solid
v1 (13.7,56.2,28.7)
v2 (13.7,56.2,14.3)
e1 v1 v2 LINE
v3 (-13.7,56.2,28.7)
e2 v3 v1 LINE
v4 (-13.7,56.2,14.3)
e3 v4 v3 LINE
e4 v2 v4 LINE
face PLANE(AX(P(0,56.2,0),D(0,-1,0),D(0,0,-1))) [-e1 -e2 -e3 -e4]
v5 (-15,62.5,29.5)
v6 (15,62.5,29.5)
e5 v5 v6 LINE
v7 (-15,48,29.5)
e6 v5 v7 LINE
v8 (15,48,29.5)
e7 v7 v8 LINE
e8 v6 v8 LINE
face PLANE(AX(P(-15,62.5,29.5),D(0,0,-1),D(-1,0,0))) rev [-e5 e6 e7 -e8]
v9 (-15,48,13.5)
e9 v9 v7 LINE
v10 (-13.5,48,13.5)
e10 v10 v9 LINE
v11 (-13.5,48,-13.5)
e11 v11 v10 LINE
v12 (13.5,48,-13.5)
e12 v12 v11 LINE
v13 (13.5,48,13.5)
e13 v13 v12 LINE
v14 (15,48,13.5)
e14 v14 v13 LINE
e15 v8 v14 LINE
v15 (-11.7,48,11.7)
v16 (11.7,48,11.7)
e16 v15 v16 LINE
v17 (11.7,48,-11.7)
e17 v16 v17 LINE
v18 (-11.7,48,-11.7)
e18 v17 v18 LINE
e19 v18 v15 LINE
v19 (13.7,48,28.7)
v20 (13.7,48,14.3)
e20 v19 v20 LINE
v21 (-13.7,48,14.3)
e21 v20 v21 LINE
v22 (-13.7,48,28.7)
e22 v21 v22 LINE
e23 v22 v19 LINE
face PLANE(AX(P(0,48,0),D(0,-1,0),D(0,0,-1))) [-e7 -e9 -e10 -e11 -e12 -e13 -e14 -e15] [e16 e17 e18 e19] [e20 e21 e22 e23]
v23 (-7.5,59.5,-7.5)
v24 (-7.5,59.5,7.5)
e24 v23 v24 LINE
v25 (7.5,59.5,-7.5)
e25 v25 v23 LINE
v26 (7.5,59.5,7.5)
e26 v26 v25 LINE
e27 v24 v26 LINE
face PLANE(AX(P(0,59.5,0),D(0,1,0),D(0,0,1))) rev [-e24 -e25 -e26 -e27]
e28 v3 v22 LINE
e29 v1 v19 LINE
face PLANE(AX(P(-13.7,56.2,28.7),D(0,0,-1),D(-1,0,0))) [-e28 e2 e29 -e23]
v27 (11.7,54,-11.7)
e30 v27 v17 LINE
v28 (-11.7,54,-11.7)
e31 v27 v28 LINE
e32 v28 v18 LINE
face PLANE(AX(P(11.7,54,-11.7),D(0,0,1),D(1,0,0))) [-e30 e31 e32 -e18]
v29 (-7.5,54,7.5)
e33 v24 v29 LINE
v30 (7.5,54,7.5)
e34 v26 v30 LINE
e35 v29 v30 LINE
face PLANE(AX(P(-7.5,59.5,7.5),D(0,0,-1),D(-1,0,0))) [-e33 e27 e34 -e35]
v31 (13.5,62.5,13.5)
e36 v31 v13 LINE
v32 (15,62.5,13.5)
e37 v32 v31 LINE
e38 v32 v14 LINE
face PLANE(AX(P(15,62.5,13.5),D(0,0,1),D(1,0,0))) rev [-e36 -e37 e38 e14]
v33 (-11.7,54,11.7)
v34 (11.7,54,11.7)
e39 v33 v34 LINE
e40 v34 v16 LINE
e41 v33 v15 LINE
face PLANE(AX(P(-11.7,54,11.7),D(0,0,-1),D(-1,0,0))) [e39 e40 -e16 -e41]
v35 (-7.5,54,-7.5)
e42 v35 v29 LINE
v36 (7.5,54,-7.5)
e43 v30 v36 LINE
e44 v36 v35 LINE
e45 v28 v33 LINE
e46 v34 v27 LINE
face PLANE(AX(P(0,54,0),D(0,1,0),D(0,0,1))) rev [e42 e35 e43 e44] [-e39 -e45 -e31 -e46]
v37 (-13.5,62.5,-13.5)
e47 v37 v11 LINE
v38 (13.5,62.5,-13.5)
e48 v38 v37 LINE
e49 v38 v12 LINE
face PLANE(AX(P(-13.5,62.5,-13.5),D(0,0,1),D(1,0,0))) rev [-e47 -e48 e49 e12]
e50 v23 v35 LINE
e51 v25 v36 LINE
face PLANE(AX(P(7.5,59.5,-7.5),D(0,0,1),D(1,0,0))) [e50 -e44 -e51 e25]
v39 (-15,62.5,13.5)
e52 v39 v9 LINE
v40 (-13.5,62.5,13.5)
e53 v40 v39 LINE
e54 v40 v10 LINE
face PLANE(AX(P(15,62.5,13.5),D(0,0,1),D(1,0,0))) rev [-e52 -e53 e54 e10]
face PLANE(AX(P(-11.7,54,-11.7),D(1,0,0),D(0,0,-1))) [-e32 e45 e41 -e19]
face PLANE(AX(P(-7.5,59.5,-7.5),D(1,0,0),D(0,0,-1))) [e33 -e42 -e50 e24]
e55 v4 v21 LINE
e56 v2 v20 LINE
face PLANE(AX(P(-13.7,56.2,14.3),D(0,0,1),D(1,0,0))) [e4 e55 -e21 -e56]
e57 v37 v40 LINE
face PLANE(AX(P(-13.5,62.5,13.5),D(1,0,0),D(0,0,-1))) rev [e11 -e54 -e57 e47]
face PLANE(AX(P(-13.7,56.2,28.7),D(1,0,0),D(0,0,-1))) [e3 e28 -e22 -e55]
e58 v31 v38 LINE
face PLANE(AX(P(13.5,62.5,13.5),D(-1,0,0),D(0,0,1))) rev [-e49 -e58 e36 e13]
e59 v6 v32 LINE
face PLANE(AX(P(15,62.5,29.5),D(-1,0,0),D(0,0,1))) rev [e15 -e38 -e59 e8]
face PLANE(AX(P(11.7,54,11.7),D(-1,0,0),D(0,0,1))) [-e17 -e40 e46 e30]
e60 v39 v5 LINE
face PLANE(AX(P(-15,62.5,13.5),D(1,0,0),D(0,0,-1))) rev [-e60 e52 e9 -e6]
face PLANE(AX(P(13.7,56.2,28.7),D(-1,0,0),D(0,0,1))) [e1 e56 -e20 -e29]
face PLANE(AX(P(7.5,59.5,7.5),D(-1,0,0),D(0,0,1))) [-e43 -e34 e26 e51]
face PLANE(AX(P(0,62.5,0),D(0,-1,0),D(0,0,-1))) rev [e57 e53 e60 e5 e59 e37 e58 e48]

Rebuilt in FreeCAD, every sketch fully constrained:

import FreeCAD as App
import Part
import Sketcher
Q = App.Units.Quantity

doc = App.newDocument("Part")
body = doc.addObject("PartDesign::Body", "Body")

# Sketch on XZ plane
sketch1 = body.newObject("Sketcher::SketchObject", "Sketch")
sketch1.AttachmentSupport = (doc.getObject("XZ_Plane"), [""])
sketch1.MapMode = "FlatFace"
sketch1.AttachmentOffset = App.Placement(App.Vector(0, 0, -48), App.Rotation())
sketch1.addGeometry([
    Part.LineSegment(App.Vector(-14, -14, 0), App.Vector(-14, 14, 0)),
    Part.LineSegment(App.Vector(-14, 14, 0), App.Vector(14, 14, 0)),
    Part.LineSegment(App.Vector(14, 14, 0), App.Vector(14, -14, 0)),
    Part.LineSegment(App.Vector(14, -14, 0), App.Vector(-14, -14, 0)),
], False)
sketch1.addConstraint([
    Sketcher.Constraint("Coincident", 0, 2, 1, 1),
    Sketcher.Constraint("Coincident", 1, 2, 2, 1),
    Sketcher.Constraint("Coincident", 2, 2, 3, 1),
    Sketcher.Constraint("Coincident", 3, 2, 0, 1),
    Sketcher.Constraint("Vertical", 0),
    Sketcher.Constraint("Horizontal", 1),
    Sketcher.Constraint("Vertical", 2),
    Sketcher.Constraint("Horizontal", 3),
    Sketcher.Constraint("Symmetric", 0, 2, 2, 2, -1, 1),
    Sketcher.Constraint("Equal", 3, 0),
    Sketcher.Constraint("DistanceX", 1, 1, 1, 2, Q("27 mm")),
])
pad1 = body.newObject("PartDesign::Pad", "Pad")
pad1.Profile = sketch1
pad1.Length = 14.5
pad1.Reversed = True

# Sketch on XZ plane
sketch2 = body.newObject("Sketcher::SketchObject", "Sketch001")
sketch2.AttachmentSupport = (doc.getObject("XZ_Plane"), [""])
sketch2.MapMode = "FlatFace"
sketch2.AttachmentOffset = App.Placement(App.Vector(0, 0, -48), App.Rotation())
sketch2.addGeometry([
    Part.LineSegment(App.Vector(-15, 14, 0), App.Vector(-15, 30, 0)),
    Part.LineSegment(App.Vector(-15, 30, 0), App.Vector(15, 30, 0)),
    Part.LineSegment(App.Vector(15, 30, 0), App.Vector(15, 14, 0)),
    Part.LineSegment(App.Vector(15, 14, 0), App.Vector(-15, 14, 0)),
], False)
sketch2.addConstraint([
    Sketcher.Constraint("Coincident", 0, 2, 1, 1),
    Sketcher.Constraint("Coincident", 1, 2, 2, 1),
    Sketcher.Constraint("Coincident", 2, 2, 3, 1),
    Sketcher.Constraint("Coincident", 3, 2, 0, 1),
    Sketcher.Constraint("Vertical", 0),
    Sketcher.Constraint("Horizontal", 1),
    Sketcher.Constraint("Vertical", 2),
    Sketcher.Constraint("Horizontal", 3),
    Sketcher.Constraint("DistanceX", 1, 1, 1, 2, Q("30 mm")),
    Sketcher.Constraint("DistanceY", 0, 1, 0, 2, Q("16 mm")),
    Sketcher.Constraint("DistanceX", 0, 2, -1, 1, Q("15 mm")),
    Sketcher.Constraint("DistanceY", -1, 1, 0, 2, Q("29.5 mm")),
])
pad2 = body.newObject("PartDesign::Pad", "Pad001")
pad2.Profile = sketch2
pad2.Length = 14.5
pad2.Reversed = True

# Sketch on XZ plane
sketch3 = body.newObject("Sketcher::SketchObject", "Sketch002")
sketch3.AttachmentSupport = (doc.getObject("XZ_Plane"), [""])
sketch3.MapMode = "FlatFace"
sketch3.AttachmentOffset = App.Placement(App.Vector(0, 0, -48), App.Rotation())
sketch3.addGeometry([
    Part.LineSegment(App.Vector(-12, -12, 0), App.Vector(-12, 12, 0)),
    Part.LineSegment(App.Vector(-12, 12, 0), App.Vector(12, 12, 0)),
    Part.LineSegment(App.Vector(12, 12, 0), App.Vector(12, -12, 0)),
    Part.LineSegment(App.Vector(12, -12, 0), App.Vector(-12, -12, 0)),
], False)
sketch3.addConstraint([
    Sketcher.Constraint("Coincident", 0, 2, 1, 1),
    Sketcher.Constraint("Coincident", 1, 2, 2, 1),
    Sketcher.Constraint("Coincident", 2, 2, 3, 1),
    Sketcher.Constraint("Coincident", 3, 2, 0, 1),
    Sketcher.Constraint("Vertical", 0),
    Sketcher.Constraint("Horizontal", 1),
    Sketcher.Constraint("Vertical", 2),
    Sketcher.Constraint("Horizontal", 3),
    Sketcher.Constraint("Symmetric", 0, 2, 2, 2, -1, 1),
    Sketcher.Constraint("Equal", 3, 0),
    Sketcher.Constraint("DistanceX", 1, 1, 1, 2, Q("23.4 mm")),
])
pocket1 = body.newObject("PartDesign::Pocket", "Pocket")
pocket1.Profile = sketch3
pocket1.Length = 6

# Sketch on XZ plane
sketch4 = body.newObject("Sketcher::SketchObject", "Sketch003")
sketch4.AttachmentSupport = (doc.getObject("XZ_Plane"), [""])
sketch4.MapMode = "FlatFace"
sketch4.AttachmentOffset = App.Placement(App.Vector(0, 0, -54), App.Rotation())
sketch4.addGeometry([
    Part.LineSegment(App.Vector(-8, -8, 0), App.Vector(-8, 8, 0)),
    Part.LineSegment(App.Vector(-8, 8, 0), App.Vector(8, 8, 0)),
    Part.LineSegment(App.Vector(8, 8, 0), App.Vector(8, -8, 0)),
    Part.LineSegment(App.Vector(8, -8, 0), App.Vector(-8, -8, 0)),
], False)
sketch4.addConstraint([
    Sketcher.Constraint("Coincident", 0, 2, 1, 1),
    Sketcher.Constraint("Coincident", 1, 2, 2, 1),
    Sketcher.Constraint("Coincident", 2, 2, 3, 1),
    Sketcher.Constraint("Coincident", 3, 2, 0, 1),
    Sketcher.Constraint("Vertical", 0),
    Sketcher.Constraint("Horizontal", 1),
    Sketcher.Constraint("Vertical", 2),
    Sketcher.Constraint("Horizontal", 3),
    Sketcher.Constraint("Symmetric", 0, 2, 2, 2, -1, 1),
    Sketcher.Constraint("Equal", 3, 0),
    Sketcher.Constraint("DistanceX", 1, 1, 1, 2, Q("15 mm")),
])
pocket2 = body.newObject("PartDesign::Pocket", "Pocket001")
pocket2.Profile = sketch4
pocket2.Length = 5.5

# Sketch on XZ plane
sketch5 = body.newObject("Sketcher::SketchObject", "Sketch004")
sketch5.AttachmentSupport = (doc.getObject("XZ_Plane"), [""])
sketch5.MapMode = "FlatFace"
sketch5.AttachmentOffset = App.Placement(App.Vector(0, 0, -48), App.Rotation())
sketch5.addGeometry([
    Part.LineSegment(App.Vector(-14, 14, 0), App.Vector(-14, 29, 0)),
    Part.LineSegment(App.Vector(-14, 29, 0), App.Vector(14, 29, 0)),
    Part.LineSegment(App.Vector(14, 29, 0), App.Vector(14, 14, 0)),
    Part.LineSegment(App.Vector(14, 14, 0), App.Vector(-14, 14, 0)),
], False)
sketch5.addConstraint([
    Sketcher.Constraint("Coincident", 0, 2, 1, 1),
    Sketcher.Constraint("Coincident", 1, 2, 2, 1),
    Sketcher.Constraint("Coincident", 2, 2, 3, 1),
    Sketcher.Constraint("Coincident", 3, 2, 0, 1),
    Sketcher.Constraint("Vertical", 0),
    Sketcher.Constraint("Horizontal", 1),
    Sketcher.Constraint("Vertical", 2),
    Sketcher.Constraint("Horizontal", 3),
    Sketcher.Constraint("DistanceX", 1, 1, 1, 2, Q("27.4 mm")),
    Sketcher.Constraint("DistanceY", 0, 1, 0, 2, Q("14.4 mm")),
    Sketcher.Constraint("DistanceX", 0, 2, -1, 1, Q("13.7 mm")),
    Sketcher.Constraint("DistanceY", -1, 1, 0, 2, Q("28.7 mm")),
])
pocket3 = body.newObject("PartDesign::Pocket", "Pocket002")
pocket3.Profile = sketch5
pocket3.Length = 8.2

doc.recompute()
